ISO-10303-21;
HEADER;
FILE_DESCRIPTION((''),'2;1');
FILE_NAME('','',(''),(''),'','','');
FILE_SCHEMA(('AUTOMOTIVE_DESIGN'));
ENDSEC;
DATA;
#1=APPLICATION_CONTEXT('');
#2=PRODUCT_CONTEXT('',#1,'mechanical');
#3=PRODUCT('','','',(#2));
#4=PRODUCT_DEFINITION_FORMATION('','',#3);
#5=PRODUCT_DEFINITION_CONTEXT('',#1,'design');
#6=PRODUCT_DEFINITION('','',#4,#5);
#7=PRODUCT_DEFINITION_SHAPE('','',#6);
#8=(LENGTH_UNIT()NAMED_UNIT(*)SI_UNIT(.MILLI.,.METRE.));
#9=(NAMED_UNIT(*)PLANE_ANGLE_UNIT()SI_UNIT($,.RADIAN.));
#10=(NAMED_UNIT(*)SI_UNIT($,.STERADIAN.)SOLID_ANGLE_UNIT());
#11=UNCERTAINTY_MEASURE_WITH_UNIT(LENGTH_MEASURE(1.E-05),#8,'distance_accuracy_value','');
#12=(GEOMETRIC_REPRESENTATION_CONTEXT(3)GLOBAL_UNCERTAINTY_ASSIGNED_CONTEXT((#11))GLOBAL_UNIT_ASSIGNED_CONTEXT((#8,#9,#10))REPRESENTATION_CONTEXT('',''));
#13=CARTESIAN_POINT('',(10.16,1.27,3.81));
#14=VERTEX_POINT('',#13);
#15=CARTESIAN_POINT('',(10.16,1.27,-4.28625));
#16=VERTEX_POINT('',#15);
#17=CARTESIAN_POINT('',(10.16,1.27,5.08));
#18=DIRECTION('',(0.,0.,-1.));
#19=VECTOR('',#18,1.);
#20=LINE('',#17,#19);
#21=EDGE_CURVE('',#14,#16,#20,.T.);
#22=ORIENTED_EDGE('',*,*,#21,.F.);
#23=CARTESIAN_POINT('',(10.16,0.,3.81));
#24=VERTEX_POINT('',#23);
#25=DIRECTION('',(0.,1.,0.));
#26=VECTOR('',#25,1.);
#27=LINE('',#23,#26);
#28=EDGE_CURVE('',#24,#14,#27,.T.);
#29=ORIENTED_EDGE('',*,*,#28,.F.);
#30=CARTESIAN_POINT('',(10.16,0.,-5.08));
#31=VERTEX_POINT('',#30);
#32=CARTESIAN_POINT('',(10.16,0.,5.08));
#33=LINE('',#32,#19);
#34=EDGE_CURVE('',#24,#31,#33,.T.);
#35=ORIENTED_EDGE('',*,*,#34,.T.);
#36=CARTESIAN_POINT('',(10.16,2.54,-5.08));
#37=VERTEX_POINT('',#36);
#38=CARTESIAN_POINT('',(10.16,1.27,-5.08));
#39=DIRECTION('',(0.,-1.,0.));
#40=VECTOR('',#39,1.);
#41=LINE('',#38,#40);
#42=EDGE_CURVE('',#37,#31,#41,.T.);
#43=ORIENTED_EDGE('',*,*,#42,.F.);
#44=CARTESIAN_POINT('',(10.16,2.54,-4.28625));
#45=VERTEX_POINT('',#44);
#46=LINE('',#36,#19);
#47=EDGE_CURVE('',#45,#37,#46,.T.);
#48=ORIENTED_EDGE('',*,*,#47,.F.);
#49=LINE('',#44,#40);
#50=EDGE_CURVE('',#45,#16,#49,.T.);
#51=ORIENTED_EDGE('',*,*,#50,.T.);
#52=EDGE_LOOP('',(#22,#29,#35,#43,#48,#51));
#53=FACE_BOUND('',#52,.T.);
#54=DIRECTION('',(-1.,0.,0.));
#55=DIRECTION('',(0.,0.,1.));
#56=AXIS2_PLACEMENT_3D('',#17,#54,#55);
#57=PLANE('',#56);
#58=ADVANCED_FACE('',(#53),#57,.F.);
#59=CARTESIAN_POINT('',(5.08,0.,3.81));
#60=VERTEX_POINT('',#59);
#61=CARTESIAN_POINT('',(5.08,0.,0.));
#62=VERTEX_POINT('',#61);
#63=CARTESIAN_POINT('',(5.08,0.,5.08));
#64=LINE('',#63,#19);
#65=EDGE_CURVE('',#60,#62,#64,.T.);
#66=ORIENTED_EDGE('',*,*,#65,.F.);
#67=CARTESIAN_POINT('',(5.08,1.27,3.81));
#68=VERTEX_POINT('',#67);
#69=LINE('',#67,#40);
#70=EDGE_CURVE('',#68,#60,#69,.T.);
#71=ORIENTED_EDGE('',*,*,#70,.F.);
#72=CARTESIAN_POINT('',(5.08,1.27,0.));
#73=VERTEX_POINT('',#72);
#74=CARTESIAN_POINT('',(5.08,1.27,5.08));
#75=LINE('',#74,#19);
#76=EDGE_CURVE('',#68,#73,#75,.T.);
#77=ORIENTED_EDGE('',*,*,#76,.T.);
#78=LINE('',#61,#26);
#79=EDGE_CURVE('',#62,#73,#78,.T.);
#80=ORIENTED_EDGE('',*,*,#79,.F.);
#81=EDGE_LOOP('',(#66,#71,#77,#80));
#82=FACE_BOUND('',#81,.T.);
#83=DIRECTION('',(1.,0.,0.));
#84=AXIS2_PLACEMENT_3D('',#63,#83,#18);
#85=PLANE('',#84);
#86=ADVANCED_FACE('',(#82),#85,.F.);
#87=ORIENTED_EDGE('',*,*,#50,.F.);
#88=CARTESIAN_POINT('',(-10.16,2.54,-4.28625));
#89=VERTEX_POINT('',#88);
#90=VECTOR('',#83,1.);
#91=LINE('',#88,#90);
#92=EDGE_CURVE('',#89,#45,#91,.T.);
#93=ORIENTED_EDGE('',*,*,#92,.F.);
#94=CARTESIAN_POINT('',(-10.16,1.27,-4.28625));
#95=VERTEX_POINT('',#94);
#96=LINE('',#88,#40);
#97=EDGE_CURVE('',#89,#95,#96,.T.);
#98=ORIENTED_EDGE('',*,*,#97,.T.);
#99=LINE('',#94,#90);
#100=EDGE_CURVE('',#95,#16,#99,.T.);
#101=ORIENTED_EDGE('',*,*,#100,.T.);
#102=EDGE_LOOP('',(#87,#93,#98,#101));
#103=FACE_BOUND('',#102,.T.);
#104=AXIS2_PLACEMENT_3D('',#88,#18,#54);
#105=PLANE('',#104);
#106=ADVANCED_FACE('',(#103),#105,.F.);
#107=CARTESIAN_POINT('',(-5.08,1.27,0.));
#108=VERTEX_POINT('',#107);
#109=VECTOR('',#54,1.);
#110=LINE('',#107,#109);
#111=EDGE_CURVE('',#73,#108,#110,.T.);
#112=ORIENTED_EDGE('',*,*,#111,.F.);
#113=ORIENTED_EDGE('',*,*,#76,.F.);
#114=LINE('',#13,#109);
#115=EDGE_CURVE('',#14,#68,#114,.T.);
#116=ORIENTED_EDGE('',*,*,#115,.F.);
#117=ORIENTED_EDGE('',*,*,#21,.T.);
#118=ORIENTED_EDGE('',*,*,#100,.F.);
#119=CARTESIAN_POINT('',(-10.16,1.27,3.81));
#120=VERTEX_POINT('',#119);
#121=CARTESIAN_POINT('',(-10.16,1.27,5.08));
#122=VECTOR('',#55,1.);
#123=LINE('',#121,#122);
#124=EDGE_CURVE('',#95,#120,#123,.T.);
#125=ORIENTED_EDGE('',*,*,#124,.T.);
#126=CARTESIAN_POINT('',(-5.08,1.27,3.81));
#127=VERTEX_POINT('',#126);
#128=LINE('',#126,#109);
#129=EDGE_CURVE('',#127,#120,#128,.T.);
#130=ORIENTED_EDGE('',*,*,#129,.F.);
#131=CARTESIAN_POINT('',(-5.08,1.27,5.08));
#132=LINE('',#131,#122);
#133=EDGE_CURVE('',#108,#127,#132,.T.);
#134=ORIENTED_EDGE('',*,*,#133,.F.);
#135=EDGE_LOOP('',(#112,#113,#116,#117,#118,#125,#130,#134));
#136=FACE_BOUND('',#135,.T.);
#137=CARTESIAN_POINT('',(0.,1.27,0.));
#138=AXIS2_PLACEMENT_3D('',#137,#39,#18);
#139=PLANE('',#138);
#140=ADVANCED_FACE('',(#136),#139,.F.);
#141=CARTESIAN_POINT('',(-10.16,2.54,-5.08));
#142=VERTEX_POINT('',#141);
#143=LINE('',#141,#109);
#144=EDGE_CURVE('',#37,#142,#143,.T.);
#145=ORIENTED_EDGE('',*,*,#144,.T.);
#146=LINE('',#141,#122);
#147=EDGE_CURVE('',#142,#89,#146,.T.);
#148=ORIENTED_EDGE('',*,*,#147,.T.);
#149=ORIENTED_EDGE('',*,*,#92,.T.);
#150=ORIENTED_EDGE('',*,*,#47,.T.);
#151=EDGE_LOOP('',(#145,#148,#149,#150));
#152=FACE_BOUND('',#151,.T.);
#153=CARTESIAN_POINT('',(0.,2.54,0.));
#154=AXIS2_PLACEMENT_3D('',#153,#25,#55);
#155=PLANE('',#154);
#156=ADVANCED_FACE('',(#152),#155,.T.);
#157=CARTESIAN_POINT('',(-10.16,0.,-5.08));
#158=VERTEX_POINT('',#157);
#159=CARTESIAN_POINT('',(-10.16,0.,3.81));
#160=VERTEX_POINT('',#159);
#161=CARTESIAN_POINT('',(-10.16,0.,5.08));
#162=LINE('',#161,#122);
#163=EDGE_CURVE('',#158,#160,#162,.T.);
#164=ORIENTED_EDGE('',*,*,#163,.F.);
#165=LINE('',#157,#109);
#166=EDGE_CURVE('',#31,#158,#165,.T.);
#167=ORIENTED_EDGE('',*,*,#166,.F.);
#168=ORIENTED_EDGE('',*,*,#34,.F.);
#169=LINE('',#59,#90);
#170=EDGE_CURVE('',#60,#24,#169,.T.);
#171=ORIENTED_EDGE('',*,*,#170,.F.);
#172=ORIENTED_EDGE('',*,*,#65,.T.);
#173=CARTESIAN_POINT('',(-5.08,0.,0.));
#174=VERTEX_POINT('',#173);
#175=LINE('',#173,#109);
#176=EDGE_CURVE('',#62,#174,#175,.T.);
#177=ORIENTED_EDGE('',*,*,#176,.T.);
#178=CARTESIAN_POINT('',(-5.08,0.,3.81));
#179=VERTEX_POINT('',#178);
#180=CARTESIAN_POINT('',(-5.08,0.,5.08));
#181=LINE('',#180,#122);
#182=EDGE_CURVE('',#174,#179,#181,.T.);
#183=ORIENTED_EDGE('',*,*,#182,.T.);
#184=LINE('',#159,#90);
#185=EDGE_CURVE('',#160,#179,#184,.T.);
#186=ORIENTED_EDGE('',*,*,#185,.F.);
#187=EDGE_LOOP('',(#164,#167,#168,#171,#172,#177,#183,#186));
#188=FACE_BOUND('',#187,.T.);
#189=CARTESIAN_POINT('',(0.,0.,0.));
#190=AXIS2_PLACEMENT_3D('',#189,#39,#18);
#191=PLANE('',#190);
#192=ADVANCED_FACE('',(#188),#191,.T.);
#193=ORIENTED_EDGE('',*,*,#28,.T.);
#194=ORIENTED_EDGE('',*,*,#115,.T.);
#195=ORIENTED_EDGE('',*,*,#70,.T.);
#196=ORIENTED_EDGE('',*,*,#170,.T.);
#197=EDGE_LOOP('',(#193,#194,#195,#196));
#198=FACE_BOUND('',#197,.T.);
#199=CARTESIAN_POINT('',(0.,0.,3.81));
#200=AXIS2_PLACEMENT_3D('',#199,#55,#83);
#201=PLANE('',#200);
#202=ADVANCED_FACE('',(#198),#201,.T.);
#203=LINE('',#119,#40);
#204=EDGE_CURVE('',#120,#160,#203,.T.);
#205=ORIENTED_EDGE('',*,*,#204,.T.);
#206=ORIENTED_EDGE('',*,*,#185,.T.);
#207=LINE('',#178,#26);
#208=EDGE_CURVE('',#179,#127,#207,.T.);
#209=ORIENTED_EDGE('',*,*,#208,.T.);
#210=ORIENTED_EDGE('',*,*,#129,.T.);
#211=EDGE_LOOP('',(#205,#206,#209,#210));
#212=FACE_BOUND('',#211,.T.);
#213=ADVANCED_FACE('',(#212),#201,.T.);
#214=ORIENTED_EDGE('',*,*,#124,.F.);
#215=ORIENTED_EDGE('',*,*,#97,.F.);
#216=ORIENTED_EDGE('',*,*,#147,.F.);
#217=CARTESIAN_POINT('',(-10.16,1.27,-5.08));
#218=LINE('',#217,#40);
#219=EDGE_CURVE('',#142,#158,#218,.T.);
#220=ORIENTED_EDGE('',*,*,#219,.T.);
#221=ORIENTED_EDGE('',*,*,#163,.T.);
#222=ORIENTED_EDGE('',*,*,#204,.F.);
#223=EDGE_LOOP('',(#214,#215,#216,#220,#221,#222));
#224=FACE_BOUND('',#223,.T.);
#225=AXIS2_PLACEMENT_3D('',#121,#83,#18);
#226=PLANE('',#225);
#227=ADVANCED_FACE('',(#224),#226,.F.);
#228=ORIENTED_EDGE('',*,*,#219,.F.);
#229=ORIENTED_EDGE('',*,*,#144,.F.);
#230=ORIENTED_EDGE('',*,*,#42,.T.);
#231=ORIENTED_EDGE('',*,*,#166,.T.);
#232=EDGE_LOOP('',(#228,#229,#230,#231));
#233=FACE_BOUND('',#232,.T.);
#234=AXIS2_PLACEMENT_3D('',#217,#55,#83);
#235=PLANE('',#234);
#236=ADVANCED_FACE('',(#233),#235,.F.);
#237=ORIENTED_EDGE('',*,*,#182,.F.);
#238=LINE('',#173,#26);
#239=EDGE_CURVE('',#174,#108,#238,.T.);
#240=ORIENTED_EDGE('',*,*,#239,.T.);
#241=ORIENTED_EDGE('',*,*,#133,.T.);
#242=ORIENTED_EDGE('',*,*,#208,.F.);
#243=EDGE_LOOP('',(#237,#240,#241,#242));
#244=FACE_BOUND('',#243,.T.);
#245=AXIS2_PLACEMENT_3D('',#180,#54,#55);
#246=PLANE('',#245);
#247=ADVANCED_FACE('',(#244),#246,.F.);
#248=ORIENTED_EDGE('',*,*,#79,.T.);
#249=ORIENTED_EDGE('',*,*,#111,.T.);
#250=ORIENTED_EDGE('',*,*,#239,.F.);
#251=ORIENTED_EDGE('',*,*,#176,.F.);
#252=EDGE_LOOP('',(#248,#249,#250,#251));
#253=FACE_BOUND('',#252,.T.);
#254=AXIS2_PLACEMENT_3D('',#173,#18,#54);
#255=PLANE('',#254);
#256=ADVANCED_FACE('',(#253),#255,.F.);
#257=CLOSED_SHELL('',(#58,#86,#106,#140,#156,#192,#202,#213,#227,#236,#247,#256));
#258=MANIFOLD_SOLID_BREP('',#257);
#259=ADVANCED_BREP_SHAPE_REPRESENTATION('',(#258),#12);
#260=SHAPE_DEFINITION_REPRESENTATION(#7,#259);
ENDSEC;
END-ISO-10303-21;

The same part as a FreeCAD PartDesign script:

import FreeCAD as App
import Part
import Sketcher

V = App.Vector
Q = App.Units.Quantity

doc = App.newDocument("Part")
body = doc.addObject("PartDesign::Body", "Body")

# Sketch on XZ plane
sketch1 = body.newObject("Sketcher::SketchObject", "Sketch")
sketch1.AttachmentSupport = (doc.getObject("XZ_Plane"), [""])
sketch1.MapMode = "FlatFace"
sketch1.addGeometry([
    Part.LineSegment(V(-10.16, -5.08, 0), V(-10.16, 5.08, 0)),
    Part.LineSegment(V(-10.16, 5.08, 0), V(10.16, 5.08, 0)),
    Part.LineSegment(V(10.16, 5.08, 0), V(10.16, -5.08, 0)),
    Part.LineSegment(V(10.16, -5.08, 0), V(-10.16, -5.08, 0)),
], False)
sketch1.addConstraint([
    Sketcher.Constraint("Coincident", 0, 2, 1, 1),
    Sketcher.Constraint("Coincident", 1, 2, 2, 1),
    Sketcher.Constraint("Coincident", 2, 2, 3, 1),
    Sketcher.Constraint("Coincident", 3, 2, 0, 1),
    Sketcher.Constraint("Vertical", 0),
    Sketcher.Constraint("Horizontal", 1),
    Sketcher.Constraint("Vertical", 2),
    Sketcher.Constraint("Horizontal", 3),
    Sketcher.Constraint("Symmetric", 0, 2, 2, 2, -1, 1),
    Sketcher.Constraint("DistanceX", 1, 1, 1, 2, Q("0.8 in")),
    Sketcher.Constraint("DistanceY", 0, 1, 0, 2, Q("0.4 in")),
])
pad1 = body.newObject("PartDesign::Pad", "Pad")
pad1.Profile = sketch1
pad1.Length = Q("0.05 in")
pad1.Reversed = True

# Sketch on XZ plane
sketch2 = body.newObject("Sketcher::SketchObject", "Sketch001")
sketch2.AttachmentSupport = (doc.getObject("XZ_Plane"), [""])
sketch2.MapMode = "FlatFace"
sketch2.AttachmentOffset = App.Placement(V(0, 0, -0.05 * 25.4), App.Rotation())
sketch2.addGeometry([
    Part.LineSegment(V(-5.08, 0, 0), V(-5.08, 5.08, 0)),
    Part.LineSegment(V(-5.08, 5.08, 0), V(5.08, 5.08, 0)),
    Part.LineSegment(V(5.08, 5.08, 0), V(5.08, 0, 0)),
    Part.LineSegment(V(5.08, 0, 0), V(-5.08, 0, 0)),
], False)
sketch2.addConstraint([
    Sketcher.Constraint("Coincident", 0, 2, 1, 1),
    Sketcher.Constraint("Coincident", 1, 2, 2, 1),
    Sketcher.Constraint("Coincident", 2, 2, 3, 1),
    Sketcher.Constraint("Coincident", 3, 2, 0, 1),
    Sketcher.Constraint("Vertical", 0),
    Sketcher.Constraint("Horizontal", 1),
    Sketcher.Constraint("Vertical", 2),
    Sketcher.Constraint("Horizontal", 3),
    Sketcher.Constraint("Symmetric", 2, 2, 3, 2, -1, 1),
    Sketcher.Constraint("DistanceX", 1, 1, 1, 2, Q("0.4 in")),
    Sketcher.Constraint("DistanceY", 0, 1, 0, 2, Q("0.2 in")),
])
pocket1 = body.newObject("PartDesign::Pocket", "Pocket")
pocket1.Profile = sketch2
pocket1.Type = "ThroughAll"
pocket1.Reversed = True

# Sketch on XZ plane
sketch3 = body.newObject("Sketcher::SketchObject", "Sketch002")
sketch3.AttachmentSupport = (doc.getObject("XZ_Plane"), [""])
sketch3.MapMode = "FlatFace"
sketch3.AttachmentOffset = App.Placement(V(0, 0, -0.05 * 25.4), App.Rotation())
sketch3.addGeometry([
    Part.LineSegment(V(-10.16, -5.08, 0), V(-10.16, -4.28625, 0)),
    Part.LineSegment(V(-10.16, -4.28625, 0), V(10.16, -4.28625, 0)),
    Part.LineSegment(V(10.16, -4.28625, 0), V(10.16, -5.08, 0)),
    Part.LineSegment(V(10.16, -5.08, 0), V(-10.16, -5.08, 0)),
], False)
sketch3.addConstraint([
    Sketcher.Constraint("Coincident", 0, 2, 1, 1),
    Sketcher.Constraint("Coincident", 1, 2, 2, 1),
    Sketcher.Constraint("Coincident", 2, 2, 3, 1),
    Sketcher.Constraint("Coincident", 3, 2, 0, 1),
    Sketcher.Constraint("Vertical", 0),
    Sketcher.Constraint("Horizontal", 1),
    Sketcher.Constraint("Vertical", 2),
    Sketcher.Constraint("Horizontal", 3),
    Sketcher.Constraint("DistanceX", 1, 1, 1, 2, Q("0.8 in")),
    Sketcher.Constraint("DistanceX", 0, 2, -1, 1, Q("0.4 in")),
    Sketcher.Constraint("DistanceY", 2, 2, -1, 1, Q("0.2 in")),
    Sketcher.Constraint("DistanceY", 0, 1, 0, 2, Q("0.03125 in")),
])
pad2 = body.newObject("PartDesign::Pad", "Pad001")
pad2.Profile = sketch3
pad2.Length = Q("0.05 in")
pad2.Reversed = True

# Sketch on XY plane
sketch4 = body.newObject("Sketcher::SketchObject", "Sketch003")
sketch4.AttachmentSupport = (doc.getObject("XY_Plane"), [""])
sketch4.MapMode = "FlatFace"
sketch4.AttachmentOffset = App.Placement(V(0, 0, 0.2 * 25.4), App.Rotation())
sketch4.addGeometry([
    Part.LineSegment(V(5.08, 1.27, 0), V(5.08, 0, 0)),  # 0
    Part.LineSegment(V(5.08, 0, 0), V(10.16, 0, 0)),  # 1
    Part.LineSegment(V(10.16, 0, 0), V(10.16, 1.27, 0)),  # 2
    Part.LineSegment(V(10.16, 1.27, 0), V(5.08, 1.27, 0)),  # 3
    Part.LineSegment(V(-10.16, 1.27, 0), V(-10.16, 0, 0)),  # 4
    Part.LineSegment(V(-10.16, 0, 0), V(-5.08, 0, 0)),  # 5
    Part.LineSegment(V(-5.08, 0, 0), V(-5.08, 1.27, 0)),  # 6
    Part.LineSegment(V(-5.08, 1.27, 0), V(-10.16, 1.27, 0)),  # 7
], False)
sketch4.addConstraint([
    Sketcher.Constraint("Coincident", 0, 2, 1, 1),
    Sketcher.Constraint("Coincident", 1, 2, 2, 1),
    Sketcher.Constraint("Coincident", 2, 2, 3, 1),
    Sketcher.Constraint("Coincident", 3, 2, 0, 1),
    Sketcher.Constraint("Coincident", 4, 2, 5, 1),
    Sketcher.Constraint("Coincident", 5, 2, 6, 1),
    Sketcher.Constraint("Coincident", 6, 2, 7, 1),
    Sketcher.Constraint("Coincident", 7, 2, 4, 1),
    Sketcher.Constraint("Vertical", 0),
    Sketcher.Constraint("Horizontal", 1),
    Sketcher.Constraint("Vertical", 2),
    Sketcher.Constraint("Horizontal", 3),
    Sketcher.Constraint("Vertical", 4),
    Sketcher.Constraint("Horizontal", 5),
    Sketcher.Constraint("Vertical", 6),
    Sketcher.Constraint("Horizontal", 7),
    Sketcher.Constraint("Symmetric", 1, 2, 4, 2, -1, 1),
    Sketcher.Constraint("Symmetric", 0, 2, 5, 2, -2),
    Sketcher.Constraint("Horizontal", 3, 2, 6, 2),
    Sketcher.Constraint("DistanceX", 1, 1, 1, 2, Q("0.2 in")),
    Sketcher.Constraint("DistanceY", 0, 2, 0, 1, Q("0.05 in")),
    Sketcher.Constraint("DistanceX", -1, 1, 0, 2, Q("0.2 in")),
])
pocket2 = body.newObject("PartDesign::Pocket", "Pocket001")
pocket2.Profile = sketch4
pocket2.Length = Q("0.05 in")

doc.recompute()
